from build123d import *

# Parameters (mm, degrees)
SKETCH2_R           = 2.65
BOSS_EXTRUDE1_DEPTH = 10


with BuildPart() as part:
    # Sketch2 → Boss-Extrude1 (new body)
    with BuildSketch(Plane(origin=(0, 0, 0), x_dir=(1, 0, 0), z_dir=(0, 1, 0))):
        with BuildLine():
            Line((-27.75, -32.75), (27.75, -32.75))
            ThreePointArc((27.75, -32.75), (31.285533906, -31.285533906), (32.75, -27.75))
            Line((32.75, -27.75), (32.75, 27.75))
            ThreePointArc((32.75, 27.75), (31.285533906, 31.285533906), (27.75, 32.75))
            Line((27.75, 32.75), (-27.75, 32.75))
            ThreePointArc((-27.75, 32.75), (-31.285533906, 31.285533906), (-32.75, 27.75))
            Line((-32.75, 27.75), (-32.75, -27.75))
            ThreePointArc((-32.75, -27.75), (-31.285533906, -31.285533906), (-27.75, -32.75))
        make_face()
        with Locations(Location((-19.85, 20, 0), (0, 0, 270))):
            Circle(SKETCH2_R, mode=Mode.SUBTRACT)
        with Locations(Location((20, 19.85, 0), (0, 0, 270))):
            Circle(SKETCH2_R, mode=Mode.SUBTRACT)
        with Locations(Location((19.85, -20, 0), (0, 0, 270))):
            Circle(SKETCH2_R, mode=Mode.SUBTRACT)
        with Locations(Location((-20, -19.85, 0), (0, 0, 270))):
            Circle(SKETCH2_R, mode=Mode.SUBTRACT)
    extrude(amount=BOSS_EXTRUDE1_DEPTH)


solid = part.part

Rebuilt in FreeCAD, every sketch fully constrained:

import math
import FreeCAD as App
import Part
import Sketcher

V = App.Vector
Q = App.Units.Quantity

doc = App.newDocument("Part")
body = doc.addObject("PartDesign::Body", "Body")

# Sketch on XZ plane
sketch1 = body.newObject("Sketcher::SketchObject", "Sketch")
sketch1.AttachmentSupport = (doc.getObject("XZ_Plane"), [""])
sketch1.MapMode = "FlatFace"
sketch1.addGeometry(Part.LineSegment(V(-27.8, 32.8, 0), V(27.8, 32.8, 0)), False)
sketch1.addGeometry(Part.ArcOfCircle(Part.Circle(V(27.8, 27.8, 0), V(0, 0, 1), 5), math.radians(0), math.radians(90)), False)
sketch1.addGeometry(Part.LineSegment(V(32.8, 27.8, 0), V(32.8, -27.8, 0)), False)
sketch1.addGeometry(Part.ArcOfCircle(Part.Circle(V(27.8, -27.8, 0), V(0, 0, 1), 5), math.radians(-90), math.radians(0)), False)
sketch1.addGeometry(Part.LineSegment(V(27.8, -32.8, 0), V(-27.8, -32.8, 0)), False)
sketch1.addGeometry(Part.ArcOfCircle(Part.Circle(V(-27.8, -27.8, 0), V(0, 0, 1), 5), math.radians(180), math.radians(270)), False)
sketch1.addGeometry(Part.LineSegment(V(-32.8, -27.8, 0), V(-32.8, 27.8, 0)), False)
sketch1.addGeometry(Part.ArcOfCircle(Part.Circle(V(-27.8, 27.8, 0), V(0, 0, 1), 5), math.radians(90), math.radians(180)), False)
sketch1.addGeometry(Part.Circle(V(-20, 19.9, 0), V(0, 0, 1), 2.6), False)
sketch1.addGeometry(Part.Circle(V(19.9, 20, 0), V(0, 0, 1), 2.6), False)
sketch1.addGeometry(Part.Circle(V(-19.9, -20, 0), V(0, 0, 1), 2.6), False)
sketch1.addGeometry(Part.Circle(V(20, -19.9, 0), V(0, 0, 1), 2.6), False)
sketch1.addConstraint(Sketcher.Constraint("Tangent", 0, 2, 1, 2))
sketch1.addConstraint(Sketcher.Constraint("Tangent", 1, 1, 2, 1))
sketch1.addConstraint(Sketcher.Constraint("Tangent", 2, 2, 3, 2))
sketch1.addConstraint(Sketcher.Constraint("Tangent", 3, 1, 4, 1))
sketch1.addConstraint(Sketcher.Constraint("Tangent", 4, 2, 5, 2))
sketch1.addConstraint(Sketcher.Constraint("Tangent", 5, 1, 6, 1))
sketch1.addConstraint(Sketcher.Constraint("Tangent", 6, 2, 7, 2))
sketch1.addConstraint(Sketcher.Constraint("Tangent", 7, 1, 0, 1))
sketch1.addConstraint(Sketcher.Constraint("Horizontal", 0))
sketch1.addConstraint(Sketcher.Constraint("Vertical", 2))
sketch1.addConstraint(Sketcher.Constraint("Horizontal", 4))
sketch1.addConstraint(Sketcher.Constraint("Vertical", 6))
sketch1.addConstraint(Sketcher.Constraint("Equal", 1, 3))
sketch1.addConstraint(Sketcher.Constraint("Equal", 3, 5))
sketch1.addConstraint(Sketcher.Constraint("Equal", 5, 7))
sketch1.addConstraint(Sketcher.Constraint("Equal", 8, 9))
sketch1.addConstraint(Sketcher.Constraint("Equal", 9, 10))
sketch1.addConstraint(Sketcher.Constraint("Equal", 10, 11))
sketch1.addConstraint(Sketcher.Constraint("Symmetric", 1, 3, 5, 3, -1, 1))
sketch1.addConstraint(Sketcher.Constraint("Symmetric", 9, 3, 10, 3, -1, 1))
sketch1.addConstraint(Sketcher.Constraint("Symmetric", 8, 3, 11, 3, -1, 1))
sketch1.addConstraint(Sketcher.Constraint("Equal", 4, 2))
sketch1.addConstraint(Sketcher.Constraint("Radius", 1, Q("5 mm")))
sketch1.addConstraint(Sketcher.Constraint("Diameter", 8, Q("5.3 mm")))
sketch1.addConstraint(Sketcher.Constraint("DistanceX", 0, 1, 0, 2, Q("55.5 mm")))
sketch1.addConstraint(Sketcher.Constraint("DistanceX", 8, 3, -1, 1, Q("20 mm")))
sketch1.addConstraint(Sketcher.Constraint("DistanceY", -1, 1, 9, 3, Q("20 mm")))
sketch1.addConstraint(Sketcher.Constraint("DistanceY", 8, 3, 7, 3, Q("7.9 mm")))
sketch1.addConstraint(Sketcher.Constraint("DistanceX", 9, 3, 1, 3, Q("7.9 mm")))
pad1 = body.newObject("PartDesign::Pad", "Pad")
pad1.Profile = sketch1
pad1.Length = 10
pad1.Reversed = True

doc.recompute()
